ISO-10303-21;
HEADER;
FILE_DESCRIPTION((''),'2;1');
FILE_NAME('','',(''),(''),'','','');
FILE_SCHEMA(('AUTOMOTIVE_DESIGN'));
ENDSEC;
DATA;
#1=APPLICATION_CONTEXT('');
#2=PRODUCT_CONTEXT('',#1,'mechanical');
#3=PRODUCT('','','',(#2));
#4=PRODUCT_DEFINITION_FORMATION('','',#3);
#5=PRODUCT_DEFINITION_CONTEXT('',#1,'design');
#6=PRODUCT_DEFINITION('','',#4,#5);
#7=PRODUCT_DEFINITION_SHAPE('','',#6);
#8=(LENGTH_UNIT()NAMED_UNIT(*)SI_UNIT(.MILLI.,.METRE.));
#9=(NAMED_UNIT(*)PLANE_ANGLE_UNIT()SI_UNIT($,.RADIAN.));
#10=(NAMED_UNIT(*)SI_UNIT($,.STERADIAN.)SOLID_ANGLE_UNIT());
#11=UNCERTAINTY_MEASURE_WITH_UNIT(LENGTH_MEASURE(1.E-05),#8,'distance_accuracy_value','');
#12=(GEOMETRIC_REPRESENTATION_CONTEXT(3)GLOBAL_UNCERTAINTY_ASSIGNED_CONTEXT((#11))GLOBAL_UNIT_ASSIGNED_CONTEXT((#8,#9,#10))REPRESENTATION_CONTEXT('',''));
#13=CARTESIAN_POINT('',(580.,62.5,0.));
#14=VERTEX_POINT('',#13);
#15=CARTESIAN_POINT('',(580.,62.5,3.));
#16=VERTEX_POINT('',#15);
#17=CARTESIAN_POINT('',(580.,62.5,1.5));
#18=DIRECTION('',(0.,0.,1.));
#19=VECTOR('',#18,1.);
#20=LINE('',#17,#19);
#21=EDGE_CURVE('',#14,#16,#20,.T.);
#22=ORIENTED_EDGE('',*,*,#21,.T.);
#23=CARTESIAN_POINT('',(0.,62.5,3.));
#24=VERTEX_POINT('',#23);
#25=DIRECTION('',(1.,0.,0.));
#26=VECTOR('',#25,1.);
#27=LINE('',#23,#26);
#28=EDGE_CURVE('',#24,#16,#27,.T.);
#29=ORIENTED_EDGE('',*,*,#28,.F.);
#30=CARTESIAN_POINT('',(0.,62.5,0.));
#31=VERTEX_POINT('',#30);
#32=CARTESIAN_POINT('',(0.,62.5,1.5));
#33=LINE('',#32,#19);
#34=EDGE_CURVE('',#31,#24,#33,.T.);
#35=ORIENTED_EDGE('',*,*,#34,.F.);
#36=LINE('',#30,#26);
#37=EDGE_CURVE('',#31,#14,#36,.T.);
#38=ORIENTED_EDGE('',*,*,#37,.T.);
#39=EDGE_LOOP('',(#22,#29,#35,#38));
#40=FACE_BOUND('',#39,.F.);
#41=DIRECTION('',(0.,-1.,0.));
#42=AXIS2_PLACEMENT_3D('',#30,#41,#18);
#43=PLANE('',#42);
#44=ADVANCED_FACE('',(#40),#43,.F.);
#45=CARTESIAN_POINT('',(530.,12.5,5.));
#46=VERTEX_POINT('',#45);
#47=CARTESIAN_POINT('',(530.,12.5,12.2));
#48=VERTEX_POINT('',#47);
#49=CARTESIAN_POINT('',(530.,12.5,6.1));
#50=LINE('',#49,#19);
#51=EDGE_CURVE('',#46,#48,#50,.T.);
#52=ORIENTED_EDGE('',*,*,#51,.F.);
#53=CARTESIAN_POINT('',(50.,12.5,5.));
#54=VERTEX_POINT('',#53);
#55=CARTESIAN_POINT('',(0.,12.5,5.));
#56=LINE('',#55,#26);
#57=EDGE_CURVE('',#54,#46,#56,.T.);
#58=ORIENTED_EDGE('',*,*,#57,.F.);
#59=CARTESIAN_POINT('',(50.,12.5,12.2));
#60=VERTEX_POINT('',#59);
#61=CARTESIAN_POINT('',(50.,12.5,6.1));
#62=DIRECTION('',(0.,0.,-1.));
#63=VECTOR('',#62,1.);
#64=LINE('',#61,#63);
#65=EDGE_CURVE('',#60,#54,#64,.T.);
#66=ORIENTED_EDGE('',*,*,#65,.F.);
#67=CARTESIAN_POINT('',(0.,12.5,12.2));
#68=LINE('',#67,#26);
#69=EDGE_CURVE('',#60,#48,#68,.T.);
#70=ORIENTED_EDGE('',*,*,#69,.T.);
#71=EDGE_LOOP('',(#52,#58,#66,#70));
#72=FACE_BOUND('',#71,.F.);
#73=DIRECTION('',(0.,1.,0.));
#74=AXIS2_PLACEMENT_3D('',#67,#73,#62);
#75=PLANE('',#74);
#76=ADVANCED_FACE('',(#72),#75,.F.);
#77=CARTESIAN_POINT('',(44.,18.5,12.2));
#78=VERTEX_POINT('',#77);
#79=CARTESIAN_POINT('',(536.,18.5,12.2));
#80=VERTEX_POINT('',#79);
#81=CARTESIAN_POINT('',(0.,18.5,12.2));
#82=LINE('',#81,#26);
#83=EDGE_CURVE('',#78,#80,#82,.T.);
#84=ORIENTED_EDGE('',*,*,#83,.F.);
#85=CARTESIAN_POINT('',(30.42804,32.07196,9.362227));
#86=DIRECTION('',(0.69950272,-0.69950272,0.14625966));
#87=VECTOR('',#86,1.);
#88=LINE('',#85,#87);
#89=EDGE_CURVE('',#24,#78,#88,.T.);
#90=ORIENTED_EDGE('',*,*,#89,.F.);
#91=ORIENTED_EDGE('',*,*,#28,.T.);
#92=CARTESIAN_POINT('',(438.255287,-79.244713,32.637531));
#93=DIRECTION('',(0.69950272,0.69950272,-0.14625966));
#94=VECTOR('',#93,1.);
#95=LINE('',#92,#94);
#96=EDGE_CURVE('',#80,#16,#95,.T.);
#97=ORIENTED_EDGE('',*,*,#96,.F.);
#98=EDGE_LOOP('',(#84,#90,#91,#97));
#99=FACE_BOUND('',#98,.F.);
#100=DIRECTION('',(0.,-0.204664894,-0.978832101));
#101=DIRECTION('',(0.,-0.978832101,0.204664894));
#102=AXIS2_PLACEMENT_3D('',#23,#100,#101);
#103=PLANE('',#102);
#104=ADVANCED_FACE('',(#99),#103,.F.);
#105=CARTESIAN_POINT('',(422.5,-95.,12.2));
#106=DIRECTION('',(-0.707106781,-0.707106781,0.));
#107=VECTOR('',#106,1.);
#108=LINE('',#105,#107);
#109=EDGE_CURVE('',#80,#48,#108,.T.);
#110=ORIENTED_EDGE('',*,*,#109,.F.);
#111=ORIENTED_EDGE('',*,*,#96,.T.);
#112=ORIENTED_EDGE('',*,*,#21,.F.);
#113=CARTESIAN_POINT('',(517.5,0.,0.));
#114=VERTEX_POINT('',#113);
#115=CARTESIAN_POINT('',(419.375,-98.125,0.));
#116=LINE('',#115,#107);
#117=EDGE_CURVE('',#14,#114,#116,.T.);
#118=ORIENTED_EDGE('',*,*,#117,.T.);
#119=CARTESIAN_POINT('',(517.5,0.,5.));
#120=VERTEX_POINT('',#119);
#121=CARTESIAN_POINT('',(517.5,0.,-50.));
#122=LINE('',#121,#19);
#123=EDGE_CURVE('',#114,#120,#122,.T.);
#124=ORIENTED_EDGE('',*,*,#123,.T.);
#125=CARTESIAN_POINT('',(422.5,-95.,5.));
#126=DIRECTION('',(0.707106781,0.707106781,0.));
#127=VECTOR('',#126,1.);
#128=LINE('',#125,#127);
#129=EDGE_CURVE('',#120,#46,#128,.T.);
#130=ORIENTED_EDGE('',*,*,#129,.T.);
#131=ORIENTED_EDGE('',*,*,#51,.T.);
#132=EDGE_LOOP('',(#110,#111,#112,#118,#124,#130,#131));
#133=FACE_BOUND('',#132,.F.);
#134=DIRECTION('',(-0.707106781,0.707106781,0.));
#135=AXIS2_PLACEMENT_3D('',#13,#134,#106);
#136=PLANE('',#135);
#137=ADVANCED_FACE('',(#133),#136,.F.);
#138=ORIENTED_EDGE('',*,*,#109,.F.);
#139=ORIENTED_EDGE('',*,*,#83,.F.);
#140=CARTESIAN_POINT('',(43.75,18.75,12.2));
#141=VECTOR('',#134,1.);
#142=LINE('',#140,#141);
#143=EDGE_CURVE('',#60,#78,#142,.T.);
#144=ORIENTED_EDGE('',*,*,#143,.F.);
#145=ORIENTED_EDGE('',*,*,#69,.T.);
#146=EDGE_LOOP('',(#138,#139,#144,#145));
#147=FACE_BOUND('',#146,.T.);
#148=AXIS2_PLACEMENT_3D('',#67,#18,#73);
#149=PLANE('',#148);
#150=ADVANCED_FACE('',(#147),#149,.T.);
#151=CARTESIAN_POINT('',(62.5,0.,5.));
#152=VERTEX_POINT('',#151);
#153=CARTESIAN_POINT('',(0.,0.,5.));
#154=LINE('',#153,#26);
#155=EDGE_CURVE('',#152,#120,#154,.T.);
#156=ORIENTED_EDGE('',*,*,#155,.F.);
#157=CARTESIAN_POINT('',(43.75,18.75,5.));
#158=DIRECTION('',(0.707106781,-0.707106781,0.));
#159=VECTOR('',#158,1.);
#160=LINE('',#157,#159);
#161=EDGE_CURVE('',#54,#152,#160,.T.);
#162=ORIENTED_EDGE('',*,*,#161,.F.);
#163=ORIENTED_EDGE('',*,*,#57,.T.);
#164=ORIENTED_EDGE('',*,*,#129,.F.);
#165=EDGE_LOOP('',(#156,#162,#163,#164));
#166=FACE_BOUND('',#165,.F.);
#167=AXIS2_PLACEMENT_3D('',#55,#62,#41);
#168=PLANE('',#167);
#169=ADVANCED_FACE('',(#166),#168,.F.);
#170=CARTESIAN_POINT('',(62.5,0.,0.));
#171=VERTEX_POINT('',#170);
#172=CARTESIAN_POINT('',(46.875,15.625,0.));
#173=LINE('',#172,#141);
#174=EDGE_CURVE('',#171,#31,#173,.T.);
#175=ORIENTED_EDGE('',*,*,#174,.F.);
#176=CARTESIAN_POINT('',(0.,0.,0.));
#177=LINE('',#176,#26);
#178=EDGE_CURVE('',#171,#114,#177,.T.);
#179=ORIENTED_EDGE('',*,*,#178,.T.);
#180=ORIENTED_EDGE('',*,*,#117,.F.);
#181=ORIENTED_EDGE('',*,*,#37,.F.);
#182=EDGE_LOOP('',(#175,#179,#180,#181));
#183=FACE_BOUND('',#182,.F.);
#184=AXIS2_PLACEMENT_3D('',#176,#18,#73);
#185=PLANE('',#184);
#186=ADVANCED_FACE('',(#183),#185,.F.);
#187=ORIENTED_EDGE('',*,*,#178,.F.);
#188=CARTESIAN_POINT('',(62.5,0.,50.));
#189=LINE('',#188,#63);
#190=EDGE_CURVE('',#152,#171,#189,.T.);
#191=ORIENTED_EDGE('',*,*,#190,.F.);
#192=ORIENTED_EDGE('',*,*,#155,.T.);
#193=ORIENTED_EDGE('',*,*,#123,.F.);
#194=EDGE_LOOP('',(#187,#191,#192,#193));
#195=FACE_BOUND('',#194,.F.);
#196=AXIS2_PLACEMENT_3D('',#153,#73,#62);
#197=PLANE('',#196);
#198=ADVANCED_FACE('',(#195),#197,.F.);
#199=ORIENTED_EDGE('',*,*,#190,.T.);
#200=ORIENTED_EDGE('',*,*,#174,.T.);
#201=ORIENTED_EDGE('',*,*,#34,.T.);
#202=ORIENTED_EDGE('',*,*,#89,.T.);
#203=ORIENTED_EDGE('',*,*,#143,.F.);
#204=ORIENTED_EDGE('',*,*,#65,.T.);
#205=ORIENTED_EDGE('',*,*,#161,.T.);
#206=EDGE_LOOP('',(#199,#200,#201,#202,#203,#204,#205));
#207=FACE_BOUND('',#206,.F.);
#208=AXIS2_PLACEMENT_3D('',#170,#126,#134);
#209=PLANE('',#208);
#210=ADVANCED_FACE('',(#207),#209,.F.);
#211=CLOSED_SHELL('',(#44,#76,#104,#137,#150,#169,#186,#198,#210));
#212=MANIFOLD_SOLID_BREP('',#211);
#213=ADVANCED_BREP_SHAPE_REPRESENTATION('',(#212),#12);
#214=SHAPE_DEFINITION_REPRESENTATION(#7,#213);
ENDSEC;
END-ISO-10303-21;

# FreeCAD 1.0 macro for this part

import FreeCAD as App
import Part
import Sketcher

doc = App.newDocument("Part")
body = doc.addObject("PartDesign::Body", "Body")

# Sketch on YZ plane
sketch1 = body.newObject("Sketcher::SketchObject", "Sketch")
sketch1.AttachmentSupport = (doc.getObject("YZ_Plane"), [""])
sketch1.MapMode = "FlatFace"
sketch1.addGeometry(Part.LineSegment(App.Vector(0, 0, 0), App.Vector(62.5, 0, 0)), False)
sketch1.addGeometry(Part.LineSegment(App.Vector(62.5, 0, 0), App.Vector(62.5, 3, 0)), False)
sketch1.addGeometry(Part.LineSegment(App.Vector(62.5, 3, 0), App.Vector(18.5, 12.2, 0)), False)
sketch1.addGeometry(Part.LineSegment(App.Vector(18.5, 12.2, 0), App.Vector(12.5, 12.2, 0)), False)
sketch1.addGeometry(Part.LineSegment(App.Vector(12.5, 12.2, 0), App.Vector(12.5, 5, 0)), False)
sketch1.addGeometry(Part.LineSegment(App.Vector(12.5, 5, 0), App.Vector(0, 5, 0)), False)
sketch1.addGeometry(Part.LineSegment(App.Vector(0, 5, 0), App.Vector(0, 0, 0)), False)
sketch1.addConstraint(Sketcher.Constraint("Coincident", 0, 2, 1, 1))
sketch1.addConstraint(Sketcher.Constraint("Coincident", 1, 2, 2, 1))
sketch1.addConstraint(Sketcher.Constraint("Coincident", 2, 2, 3, 1))
sketch1.addConstraint(Sketcher.Constraint("Coincident", 3, 2, 4, 1))
sketch1.addConstraint(Sketcher.Constraint("Coincident", 4, 2, 5, 1))
sketch1.addConstraint(Sketcher.Constraint("Coincident", 5, 2, 6, 1))
sketch1.addConstraint(Sketcher.Constraint("Coincident", 6, 2, 0, 1))
sketch1.addConstraint(Sketcher.Constraint("Horizontal", 0))
sketch1.addConstraint(Sketcher.Constraint("Vertical", 1))
sketch1.addConstraint(Sketcher.Constraint("Horizontal", 3))
sketch1.addConstraint(Sketcher.Constraint("Vertical", 4))
sketch1.addConstraint(Sketcher.Constraint("Horizontal", 5))
sketch1.addConstraint(Sketcher.Constraint("Vertical", 6))
sketch1.addConstraint(Sketcher.Constraint("Coincident", 6, 2, -1, 1))
sketch1.addConstraint(Sketcher.Constraint("DistanceX", 3, 2, 3, 1, 6.0))
sketch1.addConstraint(Sketcher.Constraint("DistanceY", 1, 1, 1, 2, 3.0))
sketch1.addConstraint(Sketcher.Constraint("DistanceY", 6, 2, 6, 1, 5.0))
sketch1.addConstraint(Sketcher.Constraint("DistanceX", 0, 1, 0, 2, 62.5))
sketch1.addConstraint(Sketcher.Constraint("DistanceX", 5, 2, 5, 1, 12.5))
sketch1.addConstraint(Sketcher.Constraint("DistanceY", 4, 2, 4, 1, 7.2))
pad1 = body.newObject("PartDesign::Pad", "Pad")
pad1.Profile = sketch1
pad1.Length = 580

# Sketch on XY plane
sketch2 = body.newObject("Sketcher::SketchObject", "Sketch001")
sketch2.AttachmentSupport = (doc.getObject("XY_Plane"), [""])
sketch2.MapMode = "FlatFace"
sketch2.addGeometry(Part.LineSegment(App.Vector(0, 62.5, 0), App.Vector(0, 0, 0)), False)
sketch2.addGeometry(Part.LineSegment(App.Vector(0, 0, 0), App.Vector(62.5, 0, 0)), False)
sketch2.addGeometry(Part.LineSegment(App.Vector(62.5, 0, 0), App.Vector(0, 62.5, 0)), False)
sketch2.addConstraint(Sketcher.Constraint("Coincident", 0, 2, 1, 1))
sketch2.addConstraint(Sketcher.Constraint("Coincident", 1, 2, 2, 1))
sketch2.addConstraint(Sketcher.Constraint("Coincident", 2, 2, 0, 1))
sketch2.addConstraint(Sketcher.Constraint("Vertical", 0))
sketch2.addConstraint(Sketcher.Constraint("Horizontal", 1))
sketch2.addConstraint(Sketcher.Constraint("Coincident", 0, 2, -1, 1))
sketch2.addConstraint(Sketcher.Constraint("Equal", 1, 0))
sketch2.addConstraint(Sketcher.Constraint("DistanceX", 1, 1, 1, 2, 62.5))
pocket1 = body.newObject("PartDesign::Pocket", "Pocket")
pocket1.Profile = sketch2
pocket1.Length = 100
pocket1.Midplane = True

# Sketch on XY plane
sketch3 = body.newObject("Sketcher::SketchObject", "Sketch002")
sketch3.AttachmentSupport = (doc.getObject("XY_Plane"), [""])
sketch3.MapMode = "FlatFace"
sketch3.addGeometry(Part.LineSegment(App.Vector(580, 62.5, 0), App.Vector(517.5, 0, 0)), False)
sketch3.addGeometry(Part.LineSegment(App.Vector(517.5, 0, 0), App.Vector(580, 0, 0)), False)
sketch3.addGeometry(Part.LineSegment(App.Vector(580, 0, 0), App.Vector(580, 62.5, 0)), False)
sketch3.addConstraint(Sketcher.Constraint("Coincident", 0, 2, 1, 1))
sketch3.addConstraint(Sketcher.Constraint("Coincident", 1, 2, 2, 1))
sketch3.addConstraint(Sketcher.Constraint("Coincident", 2, 2, 0, 1))
sketch3.addConstraint(Sketcher.Constraint("Horizontal", 1))
sketch3.addConstraint(Sketcher.Constraint("Vertical", 2))
sketch3.addConstraint(Sketcher.Constraint("PointOnObject", 0, 2, -1))
sketch3.addConstraint(Sketcher.Constraint("Equal", 1, 2))
sketch3.addConstraint(Sketcher.Constraint("DistanceX", 1, 1, 1, 2, 62.5))
sketch3.addConstraint(Sketcher.Constraint("DistanceX", -1, 1, 1, 2, 580.0))
pocket2 = body.newObject("PartDesign::Pocket", "Pocket001")
pocket2.Profile = sketch3
pocket2.Length = 100
pocket2.Midplane = True

doc.recompute()
